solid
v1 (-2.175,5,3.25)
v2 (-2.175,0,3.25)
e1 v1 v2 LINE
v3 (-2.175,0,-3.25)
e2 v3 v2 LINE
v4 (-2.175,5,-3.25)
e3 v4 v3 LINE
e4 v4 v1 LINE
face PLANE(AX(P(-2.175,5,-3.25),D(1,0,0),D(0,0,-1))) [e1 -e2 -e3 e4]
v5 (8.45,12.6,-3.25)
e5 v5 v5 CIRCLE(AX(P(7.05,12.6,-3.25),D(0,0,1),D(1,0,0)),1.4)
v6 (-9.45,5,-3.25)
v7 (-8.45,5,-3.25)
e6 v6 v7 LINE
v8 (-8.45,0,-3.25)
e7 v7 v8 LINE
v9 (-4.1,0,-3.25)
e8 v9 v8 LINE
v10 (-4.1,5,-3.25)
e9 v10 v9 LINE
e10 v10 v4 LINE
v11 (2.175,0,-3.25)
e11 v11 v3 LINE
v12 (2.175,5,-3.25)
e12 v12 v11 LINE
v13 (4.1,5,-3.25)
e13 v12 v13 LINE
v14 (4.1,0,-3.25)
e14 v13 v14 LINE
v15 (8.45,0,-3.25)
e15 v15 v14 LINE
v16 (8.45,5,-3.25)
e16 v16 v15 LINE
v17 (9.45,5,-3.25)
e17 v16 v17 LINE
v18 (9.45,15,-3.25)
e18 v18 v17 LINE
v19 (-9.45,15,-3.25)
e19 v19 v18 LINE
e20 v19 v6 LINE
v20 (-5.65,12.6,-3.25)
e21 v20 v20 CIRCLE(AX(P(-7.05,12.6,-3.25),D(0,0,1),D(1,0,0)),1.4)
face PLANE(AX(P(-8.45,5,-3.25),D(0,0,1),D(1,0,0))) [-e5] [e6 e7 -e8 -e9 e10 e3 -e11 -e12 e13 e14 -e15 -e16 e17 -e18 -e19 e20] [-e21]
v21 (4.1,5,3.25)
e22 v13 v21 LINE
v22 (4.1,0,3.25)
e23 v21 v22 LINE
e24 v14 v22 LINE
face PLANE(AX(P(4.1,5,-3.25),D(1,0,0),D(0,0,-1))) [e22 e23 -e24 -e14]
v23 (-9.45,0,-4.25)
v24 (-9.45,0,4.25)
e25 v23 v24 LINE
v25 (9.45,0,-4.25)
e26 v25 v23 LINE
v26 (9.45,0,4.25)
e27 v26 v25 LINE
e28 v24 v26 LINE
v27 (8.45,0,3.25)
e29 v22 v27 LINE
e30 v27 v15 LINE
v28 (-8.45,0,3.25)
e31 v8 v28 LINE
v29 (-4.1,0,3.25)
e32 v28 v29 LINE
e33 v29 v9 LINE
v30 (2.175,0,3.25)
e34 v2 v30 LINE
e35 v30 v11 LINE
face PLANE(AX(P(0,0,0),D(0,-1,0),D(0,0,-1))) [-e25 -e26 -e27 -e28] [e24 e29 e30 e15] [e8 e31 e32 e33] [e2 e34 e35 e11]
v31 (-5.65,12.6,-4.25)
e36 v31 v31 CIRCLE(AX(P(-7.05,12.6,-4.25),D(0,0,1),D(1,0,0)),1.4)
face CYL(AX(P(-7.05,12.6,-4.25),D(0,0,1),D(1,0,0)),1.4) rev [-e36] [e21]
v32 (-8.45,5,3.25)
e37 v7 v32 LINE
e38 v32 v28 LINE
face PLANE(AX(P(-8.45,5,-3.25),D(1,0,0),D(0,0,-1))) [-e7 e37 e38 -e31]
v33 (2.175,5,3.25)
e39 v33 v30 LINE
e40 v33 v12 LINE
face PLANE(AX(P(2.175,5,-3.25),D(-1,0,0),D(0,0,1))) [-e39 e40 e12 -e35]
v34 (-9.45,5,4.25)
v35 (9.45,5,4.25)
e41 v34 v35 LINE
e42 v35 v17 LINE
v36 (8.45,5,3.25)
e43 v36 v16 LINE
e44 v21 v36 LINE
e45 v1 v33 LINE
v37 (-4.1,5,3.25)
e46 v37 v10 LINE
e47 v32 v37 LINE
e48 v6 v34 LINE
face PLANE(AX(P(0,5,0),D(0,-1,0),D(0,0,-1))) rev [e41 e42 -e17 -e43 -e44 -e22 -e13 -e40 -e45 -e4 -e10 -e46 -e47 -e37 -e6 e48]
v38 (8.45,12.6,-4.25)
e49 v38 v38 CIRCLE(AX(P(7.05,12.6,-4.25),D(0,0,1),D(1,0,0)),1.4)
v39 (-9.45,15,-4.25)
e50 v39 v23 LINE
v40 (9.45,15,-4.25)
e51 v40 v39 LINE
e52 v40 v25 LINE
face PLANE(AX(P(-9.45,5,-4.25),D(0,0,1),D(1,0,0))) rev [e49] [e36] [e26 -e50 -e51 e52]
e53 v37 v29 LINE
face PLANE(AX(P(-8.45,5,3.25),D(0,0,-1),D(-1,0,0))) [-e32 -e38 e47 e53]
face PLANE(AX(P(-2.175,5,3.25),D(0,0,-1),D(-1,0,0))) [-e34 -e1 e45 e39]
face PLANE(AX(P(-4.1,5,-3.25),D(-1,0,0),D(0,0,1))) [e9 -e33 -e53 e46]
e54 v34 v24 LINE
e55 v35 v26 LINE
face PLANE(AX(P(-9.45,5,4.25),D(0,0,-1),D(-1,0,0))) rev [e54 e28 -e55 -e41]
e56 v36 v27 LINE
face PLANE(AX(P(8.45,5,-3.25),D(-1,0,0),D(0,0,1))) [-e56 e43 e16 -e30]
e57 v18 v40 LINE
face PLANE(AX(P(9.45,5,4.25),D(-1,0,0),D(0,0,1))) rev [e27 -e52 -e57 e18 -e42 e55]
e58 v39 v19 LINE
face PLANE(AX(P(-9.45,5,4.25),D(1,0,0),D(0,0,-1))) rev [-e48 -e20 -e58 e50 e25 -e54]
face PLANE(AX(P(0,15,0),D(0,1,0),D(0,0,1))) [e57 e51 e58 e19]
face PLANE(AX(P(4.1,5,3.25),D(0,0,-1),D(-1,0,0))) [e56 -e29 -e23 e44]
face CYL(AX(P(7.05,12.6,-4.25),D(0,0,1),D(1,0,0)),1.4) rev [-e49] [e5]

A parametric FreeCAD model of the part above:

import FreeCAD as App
import Part
import Sketcher

V = App.Vector
Q = App.Units.Quantity

doc = App.newDocument("Part")
body = doc.addObject("PartDesign::Body", "Body")

# Sketch on XZ plane
sketch1 = body.newObject("Sketcher::SketchObject", "Sketch")
sketch1.AttachmentSupport = (doc.getObject("XZ_Plane"), [""])
sketch1.MapMode = "FlatFace"
sketch1.addGeometry(Part.LineSegment(V(-9.4, -4.2, 0), V(-9.4, 4.2, 0)), False)
sketch1.addGeometry(Part.LineSegment(V(-9.4, 4.2, 0), V(9.4, 4.2, 0)), False)
sketch1.addGeometry(Part.LineSegment(V(9.4, 4.2, 0), V(9.4, -4.2, 0)), False)
sketch1.addGeometry(Part.LineSegment(V(9.4, -4.2, 0), V(-9.4, -4.2, 0)), False)
sketch1.addGeometry(Part.LineSegment(V(-4.1, 3.2, 0), V(-8.4, 3.2, 0)), False)
sketch1.addGeometry(Part.LineSegment(V(-8.4, 3.2, 0), V(-8.4, -3.2, 0)), False)
sketch1.addGeometry(Part.LineSegment(V(-8.4, -3.2, 0), V(-4.1, -3.2, 0)), False)
sketch1.addGeometry(Part.LineSegment(V(-4.1, -3.2, 0), V(-4.1, 3.2, 0)), False)
sketch1.addGeometry(Part.LineSegment(V(2.2, 3.2, 0), V(-2.2, 3.2, 0)), False)
sketch1.addGeometry(Part.LineSegment(V(-2.2, 3.2, 0), V(-2.2, -3.2, 0)), False)
sketch1.addGeometry(Part.LineSegment(V(-2.2, -3.2, 0), V(2.2, -3.2, 0)), False)
sketch1.addGeometry(Part.LineSegment(V(2.2, -3.2, 0), V(2.2, 3.2, 0)), False)
sketch1.addGeometry(Part.LineSegment(V(8.4, 3.2, 0), V(4.1, 3.2, 0)), False)
sketch1.addGeometry(Part.LineSegment(V(4.1, 3.2, 0), V(4.1, -3.2, 0)), False)
sketch1.addGeometry(Part.LineSegment(V(4.1, -3.2, 0), V(8.4, -3.2, 0)), False)
sketch1.addGeometry(Part.LineSegment(V(8.4, -3.2, 0), V(8.4, 3.2, 0)), False)
sketch1.addConstraint(Sketcher.Constraint("Coincident", 0, 2, 1, 1))
sketch1.addConstraint(Sketcher.Constraint("Coincident", 1, 2, 2, 1))
sketch1.addConstraint(Sketcher.Constraint("Coincident", 2, 2, 3, 1))
sketch1.addConstraint(Sketcher.Constraint("Coincident", 3, 2, 0, 1))
sketch1.addConstraint(Sketcher.Constraint("Coincident", 4, 2, 5, 1))
sketch1.addConstraint(Sketcher.Constraint("Coincident", 5, 2, 6, 1))
sketch1.addConstraint(Sketcher.Constraint("Coincident", 6, 2, 7, 1))
sketch1.addConstraint(Sketcher.Constraint("Coincident", 7, 2, 4, 1))
sketch1.addConstraint(Sketcher.Constraint("Coincident", 8, 2, 9, 1))
sketch1.addConstraint(Sketcher.Constraint("Coincident", 9, 2, 10, 1))
sketch1.addConstraint(Sketcher.Constraint("Coincident", 10, 2, 11, 1))
sketch1.addConstraint(Sketcher.Constraint("Coincident", 11, 2, 8, 1))
sketch1.addConstraint(Sketcher.Constraint("Coincident", 12, 2, 13, 1))
sketch1.addConstraint(Sketcher.Constraint("Coincident", 13, 2, 14, 1))
sketch1.addConstraint(Sketcher.Constraint("Coincident", 14, 2, 15, 1))
sketch1.addConstraint(Sketcher.Constraint("Coincident", 15, 2, 12, 1))
sketch1.addConstraint(Sketcher.Constraint("Vertical", 0))
sketch1.addConstraint(Sketcher.Constraint("Horizontal", 1))
sketch1.addConstraint(Sketcher.Constraint("Vertical", 2))
sketch1.addConstraint(Sketcher.Constraint("Horizontal", 3))
sketch1.addConstraint(Sketcher.Constraint("Horizontal", 4))
sketch1.addConstraint(Sketcher.Constraint("Vertical", 5))
sketch1.addConstraint(Sketcher.Constraint("Horizontal", 6))
sketch1.addConstraint(Sketcher.Constraint("Vertical", 7))
sketch1.addConstraint(Sketcher.Constraint("Horizontal", 8))
sketch1.addConstraint(Sketcher.Constraint("Vertical", 9))
sketch1.addConstraint(Sketcher.Constraint("Horizontal", 10))
sketch1.addConstraint(Sketcher.Constraint("Vertical", 11))
sketch1.addConstraint(Sketcher.Constraint("Horizontal", 12))
sketch1.addConstraint(Sketcher.Constraint("Vertical", 13))
sketch1.addConstraint(Sketcher.Constraint("Horizontal", 14))
sketch1.addConstraint(Sketcher.Constraint("Vertical", 15))
sketch1.addConstraint(Sketcher.Constraint("Symmetric", 0, 2, 2, 2, -1, 1))
sketch1.addConstraint(Sketcher.Constraint("Symmetric", 8, 2, 10, 2, -1, 1))
sketch1.addConstraint(Sketcher.Constraint("Symmetric", 6, 2, 12, 2, -1, 1))
sketch1.addConstraint(Sketcher.Constraint("Symmetric", 4, 2, 14, 2, -1, 1))
sketch1.addConstraint(Sketcher.Constraint("Horizontal", 7, 2, 8, 2))
sketch1.addConstraint(Sketcher.Constraint("Horizontal", 6, 2, 9, 2))
sketch1.addConstraint(Sketcher.Constraint("Equal", 6, 8))
sketch1.addConstraint(Sketcher.Constraint("DistanceX", 1, 1, 1, 2, Q("18.9 mm")))
sketch1.addConstraint(Sketcher.Constraint("DistanceY", 0, 1, 0, 2, Q("8.5 mm")))
sketch1.addConstraint(Sketcher.Constraint("DistanceY", 5, 2, 5, 1, Q("6.5 mm")))
sketch1.addConstraint(Sketcher.Constraint("DistanceX", 0, 2, 4, 2, Q("1 mm")))
sketch1.addConstraint(Sketcher.Constraint("DistanceX", 4, 2, 4, 1, Q("4.35 mm")))
pad1 = body.newObject("PartDesign::Pad", "Pad")
pad1.Profile = sketch1
pad1.Length = 5
pad1.Reversed = True

# Sketch on XZ plane
sketch2 = body.newObject("Sketcher::SketchObject", "Sketch001")
sketch2.AttachmentSupport = (doc.getObject("XZ_Plane"), [""])
sketch2.MapMode = "FlatFace"
sketch2.AttachmentOffset = App.Placement(V(0, 0, -5), App.Rotation())
sketch2.addGeometry(Part.LineSegment(V(-9.4, -4.2, 0), V(-9.4, -3.2, 0)), False)
sketch2.addGeometry(Part.LineSegment(V(-9.4, -3.2, 0), V(9.4, -3.2, 0)), False)
sketch2.addGeometry(Part.LineSegment(V(9.4, -3.2, 0), V(9.4, -4.2, 0)), False)
sketch2.addGeometry(Part.LineSegment(V(9.4, -4.2, 0), V(-9.4, -4.2, 0)), False)
sketch2.addConstraint(Sketcher.Constraint("Coincident", 0, 2, 1, 1))
sketch2.addConstraint(Sketcher.Constraint("Coincident", 1, 2, 2, 1))
sketch2.addConstraint(Sketcher.Constraint("Coincident", 2, 2, 3, 1))
sketch2.addConstraint(Sketcher.Constraint("Coincident", 3, 2, 0, 1))
sketch2.addConstraint(Sketcher.Constraint("Vertical", 0))
sketch2.addConstraint(Sketcher.Constraint("Horizontal", 1))
sketch2.addConstraint(Sketcher.Constraint("Vertical", 2))
sketch2.addConstraint(Sketcher.Constraint("Horizontal", 3))
sketch2.addConstraint(Sketcher.Constraint("DistanceY", 0, 1, 0, 2, Q("1 mm")))
sketch2.addConstraint(Sketcher.Constraint("DistanceX", 1, 1, 1, 2, Q("18.9 mm")))
sketch2.addConstraint(Sketcher.Constraint("DistanceX", 0, 2, -1, 1, Q("9.45 mm")))
sketch2.addConstraint(Sketcher.Constraint("DistanceY", 0, 2, -1, 1, Q("3.25 mm")))
pad2 = body.newObject("PartDesign::Pad", "Pad001")
pad2.Profile = sketch2
pad2.Length = 10
pad2.Reversed = True

# Sketch on XY plane
sketch3 = body.newObject("Sketcher::SketchObject", "Sketch002")
sketch3.AttachmentSupport = (doc.getObject("XY_Plane"), [""])
sketch3.MapMode = "FlatFace"
sketch3.AttachmentOffset = App.Placement(V(0, 0, -3.25), App.Rotation())
sketch3.addGeometry(Part.Circle(V(7, 12.6, 0), V(0, 0, 1), 1.4), False)
sketch3.addGeometry(Part.Circle(V(-7, 12.6, 0), V(0, 0, 1), 1.4), False)
sketch3.addConstraint(Sketcher.Constraint("Equal", 0, 1))
sketch3.addConstraint(Sketcher.Constraint("Symmetric", 0, 3, 1, 3, -2))
sketch3.addConstraint(Sketcher.Constraint("Diameter", 0, Q("2.8 mm")))
sketch3.addConstraint(Sketcher.Constraint("DistanceY", -1, 1, 0, 3, Q("12.6 mm")))
sketch3.addConstraint(Sketcher.Constraint("DistanceX", 1, 3, 0, 3, Q("14.1 mm")))
pocket1 = body.newObject("PartDesign::Pocket", "Pocket")
pocket1.Profile = sketch3
pocket1.Type = "ThroughAll"

doc.recompute()
